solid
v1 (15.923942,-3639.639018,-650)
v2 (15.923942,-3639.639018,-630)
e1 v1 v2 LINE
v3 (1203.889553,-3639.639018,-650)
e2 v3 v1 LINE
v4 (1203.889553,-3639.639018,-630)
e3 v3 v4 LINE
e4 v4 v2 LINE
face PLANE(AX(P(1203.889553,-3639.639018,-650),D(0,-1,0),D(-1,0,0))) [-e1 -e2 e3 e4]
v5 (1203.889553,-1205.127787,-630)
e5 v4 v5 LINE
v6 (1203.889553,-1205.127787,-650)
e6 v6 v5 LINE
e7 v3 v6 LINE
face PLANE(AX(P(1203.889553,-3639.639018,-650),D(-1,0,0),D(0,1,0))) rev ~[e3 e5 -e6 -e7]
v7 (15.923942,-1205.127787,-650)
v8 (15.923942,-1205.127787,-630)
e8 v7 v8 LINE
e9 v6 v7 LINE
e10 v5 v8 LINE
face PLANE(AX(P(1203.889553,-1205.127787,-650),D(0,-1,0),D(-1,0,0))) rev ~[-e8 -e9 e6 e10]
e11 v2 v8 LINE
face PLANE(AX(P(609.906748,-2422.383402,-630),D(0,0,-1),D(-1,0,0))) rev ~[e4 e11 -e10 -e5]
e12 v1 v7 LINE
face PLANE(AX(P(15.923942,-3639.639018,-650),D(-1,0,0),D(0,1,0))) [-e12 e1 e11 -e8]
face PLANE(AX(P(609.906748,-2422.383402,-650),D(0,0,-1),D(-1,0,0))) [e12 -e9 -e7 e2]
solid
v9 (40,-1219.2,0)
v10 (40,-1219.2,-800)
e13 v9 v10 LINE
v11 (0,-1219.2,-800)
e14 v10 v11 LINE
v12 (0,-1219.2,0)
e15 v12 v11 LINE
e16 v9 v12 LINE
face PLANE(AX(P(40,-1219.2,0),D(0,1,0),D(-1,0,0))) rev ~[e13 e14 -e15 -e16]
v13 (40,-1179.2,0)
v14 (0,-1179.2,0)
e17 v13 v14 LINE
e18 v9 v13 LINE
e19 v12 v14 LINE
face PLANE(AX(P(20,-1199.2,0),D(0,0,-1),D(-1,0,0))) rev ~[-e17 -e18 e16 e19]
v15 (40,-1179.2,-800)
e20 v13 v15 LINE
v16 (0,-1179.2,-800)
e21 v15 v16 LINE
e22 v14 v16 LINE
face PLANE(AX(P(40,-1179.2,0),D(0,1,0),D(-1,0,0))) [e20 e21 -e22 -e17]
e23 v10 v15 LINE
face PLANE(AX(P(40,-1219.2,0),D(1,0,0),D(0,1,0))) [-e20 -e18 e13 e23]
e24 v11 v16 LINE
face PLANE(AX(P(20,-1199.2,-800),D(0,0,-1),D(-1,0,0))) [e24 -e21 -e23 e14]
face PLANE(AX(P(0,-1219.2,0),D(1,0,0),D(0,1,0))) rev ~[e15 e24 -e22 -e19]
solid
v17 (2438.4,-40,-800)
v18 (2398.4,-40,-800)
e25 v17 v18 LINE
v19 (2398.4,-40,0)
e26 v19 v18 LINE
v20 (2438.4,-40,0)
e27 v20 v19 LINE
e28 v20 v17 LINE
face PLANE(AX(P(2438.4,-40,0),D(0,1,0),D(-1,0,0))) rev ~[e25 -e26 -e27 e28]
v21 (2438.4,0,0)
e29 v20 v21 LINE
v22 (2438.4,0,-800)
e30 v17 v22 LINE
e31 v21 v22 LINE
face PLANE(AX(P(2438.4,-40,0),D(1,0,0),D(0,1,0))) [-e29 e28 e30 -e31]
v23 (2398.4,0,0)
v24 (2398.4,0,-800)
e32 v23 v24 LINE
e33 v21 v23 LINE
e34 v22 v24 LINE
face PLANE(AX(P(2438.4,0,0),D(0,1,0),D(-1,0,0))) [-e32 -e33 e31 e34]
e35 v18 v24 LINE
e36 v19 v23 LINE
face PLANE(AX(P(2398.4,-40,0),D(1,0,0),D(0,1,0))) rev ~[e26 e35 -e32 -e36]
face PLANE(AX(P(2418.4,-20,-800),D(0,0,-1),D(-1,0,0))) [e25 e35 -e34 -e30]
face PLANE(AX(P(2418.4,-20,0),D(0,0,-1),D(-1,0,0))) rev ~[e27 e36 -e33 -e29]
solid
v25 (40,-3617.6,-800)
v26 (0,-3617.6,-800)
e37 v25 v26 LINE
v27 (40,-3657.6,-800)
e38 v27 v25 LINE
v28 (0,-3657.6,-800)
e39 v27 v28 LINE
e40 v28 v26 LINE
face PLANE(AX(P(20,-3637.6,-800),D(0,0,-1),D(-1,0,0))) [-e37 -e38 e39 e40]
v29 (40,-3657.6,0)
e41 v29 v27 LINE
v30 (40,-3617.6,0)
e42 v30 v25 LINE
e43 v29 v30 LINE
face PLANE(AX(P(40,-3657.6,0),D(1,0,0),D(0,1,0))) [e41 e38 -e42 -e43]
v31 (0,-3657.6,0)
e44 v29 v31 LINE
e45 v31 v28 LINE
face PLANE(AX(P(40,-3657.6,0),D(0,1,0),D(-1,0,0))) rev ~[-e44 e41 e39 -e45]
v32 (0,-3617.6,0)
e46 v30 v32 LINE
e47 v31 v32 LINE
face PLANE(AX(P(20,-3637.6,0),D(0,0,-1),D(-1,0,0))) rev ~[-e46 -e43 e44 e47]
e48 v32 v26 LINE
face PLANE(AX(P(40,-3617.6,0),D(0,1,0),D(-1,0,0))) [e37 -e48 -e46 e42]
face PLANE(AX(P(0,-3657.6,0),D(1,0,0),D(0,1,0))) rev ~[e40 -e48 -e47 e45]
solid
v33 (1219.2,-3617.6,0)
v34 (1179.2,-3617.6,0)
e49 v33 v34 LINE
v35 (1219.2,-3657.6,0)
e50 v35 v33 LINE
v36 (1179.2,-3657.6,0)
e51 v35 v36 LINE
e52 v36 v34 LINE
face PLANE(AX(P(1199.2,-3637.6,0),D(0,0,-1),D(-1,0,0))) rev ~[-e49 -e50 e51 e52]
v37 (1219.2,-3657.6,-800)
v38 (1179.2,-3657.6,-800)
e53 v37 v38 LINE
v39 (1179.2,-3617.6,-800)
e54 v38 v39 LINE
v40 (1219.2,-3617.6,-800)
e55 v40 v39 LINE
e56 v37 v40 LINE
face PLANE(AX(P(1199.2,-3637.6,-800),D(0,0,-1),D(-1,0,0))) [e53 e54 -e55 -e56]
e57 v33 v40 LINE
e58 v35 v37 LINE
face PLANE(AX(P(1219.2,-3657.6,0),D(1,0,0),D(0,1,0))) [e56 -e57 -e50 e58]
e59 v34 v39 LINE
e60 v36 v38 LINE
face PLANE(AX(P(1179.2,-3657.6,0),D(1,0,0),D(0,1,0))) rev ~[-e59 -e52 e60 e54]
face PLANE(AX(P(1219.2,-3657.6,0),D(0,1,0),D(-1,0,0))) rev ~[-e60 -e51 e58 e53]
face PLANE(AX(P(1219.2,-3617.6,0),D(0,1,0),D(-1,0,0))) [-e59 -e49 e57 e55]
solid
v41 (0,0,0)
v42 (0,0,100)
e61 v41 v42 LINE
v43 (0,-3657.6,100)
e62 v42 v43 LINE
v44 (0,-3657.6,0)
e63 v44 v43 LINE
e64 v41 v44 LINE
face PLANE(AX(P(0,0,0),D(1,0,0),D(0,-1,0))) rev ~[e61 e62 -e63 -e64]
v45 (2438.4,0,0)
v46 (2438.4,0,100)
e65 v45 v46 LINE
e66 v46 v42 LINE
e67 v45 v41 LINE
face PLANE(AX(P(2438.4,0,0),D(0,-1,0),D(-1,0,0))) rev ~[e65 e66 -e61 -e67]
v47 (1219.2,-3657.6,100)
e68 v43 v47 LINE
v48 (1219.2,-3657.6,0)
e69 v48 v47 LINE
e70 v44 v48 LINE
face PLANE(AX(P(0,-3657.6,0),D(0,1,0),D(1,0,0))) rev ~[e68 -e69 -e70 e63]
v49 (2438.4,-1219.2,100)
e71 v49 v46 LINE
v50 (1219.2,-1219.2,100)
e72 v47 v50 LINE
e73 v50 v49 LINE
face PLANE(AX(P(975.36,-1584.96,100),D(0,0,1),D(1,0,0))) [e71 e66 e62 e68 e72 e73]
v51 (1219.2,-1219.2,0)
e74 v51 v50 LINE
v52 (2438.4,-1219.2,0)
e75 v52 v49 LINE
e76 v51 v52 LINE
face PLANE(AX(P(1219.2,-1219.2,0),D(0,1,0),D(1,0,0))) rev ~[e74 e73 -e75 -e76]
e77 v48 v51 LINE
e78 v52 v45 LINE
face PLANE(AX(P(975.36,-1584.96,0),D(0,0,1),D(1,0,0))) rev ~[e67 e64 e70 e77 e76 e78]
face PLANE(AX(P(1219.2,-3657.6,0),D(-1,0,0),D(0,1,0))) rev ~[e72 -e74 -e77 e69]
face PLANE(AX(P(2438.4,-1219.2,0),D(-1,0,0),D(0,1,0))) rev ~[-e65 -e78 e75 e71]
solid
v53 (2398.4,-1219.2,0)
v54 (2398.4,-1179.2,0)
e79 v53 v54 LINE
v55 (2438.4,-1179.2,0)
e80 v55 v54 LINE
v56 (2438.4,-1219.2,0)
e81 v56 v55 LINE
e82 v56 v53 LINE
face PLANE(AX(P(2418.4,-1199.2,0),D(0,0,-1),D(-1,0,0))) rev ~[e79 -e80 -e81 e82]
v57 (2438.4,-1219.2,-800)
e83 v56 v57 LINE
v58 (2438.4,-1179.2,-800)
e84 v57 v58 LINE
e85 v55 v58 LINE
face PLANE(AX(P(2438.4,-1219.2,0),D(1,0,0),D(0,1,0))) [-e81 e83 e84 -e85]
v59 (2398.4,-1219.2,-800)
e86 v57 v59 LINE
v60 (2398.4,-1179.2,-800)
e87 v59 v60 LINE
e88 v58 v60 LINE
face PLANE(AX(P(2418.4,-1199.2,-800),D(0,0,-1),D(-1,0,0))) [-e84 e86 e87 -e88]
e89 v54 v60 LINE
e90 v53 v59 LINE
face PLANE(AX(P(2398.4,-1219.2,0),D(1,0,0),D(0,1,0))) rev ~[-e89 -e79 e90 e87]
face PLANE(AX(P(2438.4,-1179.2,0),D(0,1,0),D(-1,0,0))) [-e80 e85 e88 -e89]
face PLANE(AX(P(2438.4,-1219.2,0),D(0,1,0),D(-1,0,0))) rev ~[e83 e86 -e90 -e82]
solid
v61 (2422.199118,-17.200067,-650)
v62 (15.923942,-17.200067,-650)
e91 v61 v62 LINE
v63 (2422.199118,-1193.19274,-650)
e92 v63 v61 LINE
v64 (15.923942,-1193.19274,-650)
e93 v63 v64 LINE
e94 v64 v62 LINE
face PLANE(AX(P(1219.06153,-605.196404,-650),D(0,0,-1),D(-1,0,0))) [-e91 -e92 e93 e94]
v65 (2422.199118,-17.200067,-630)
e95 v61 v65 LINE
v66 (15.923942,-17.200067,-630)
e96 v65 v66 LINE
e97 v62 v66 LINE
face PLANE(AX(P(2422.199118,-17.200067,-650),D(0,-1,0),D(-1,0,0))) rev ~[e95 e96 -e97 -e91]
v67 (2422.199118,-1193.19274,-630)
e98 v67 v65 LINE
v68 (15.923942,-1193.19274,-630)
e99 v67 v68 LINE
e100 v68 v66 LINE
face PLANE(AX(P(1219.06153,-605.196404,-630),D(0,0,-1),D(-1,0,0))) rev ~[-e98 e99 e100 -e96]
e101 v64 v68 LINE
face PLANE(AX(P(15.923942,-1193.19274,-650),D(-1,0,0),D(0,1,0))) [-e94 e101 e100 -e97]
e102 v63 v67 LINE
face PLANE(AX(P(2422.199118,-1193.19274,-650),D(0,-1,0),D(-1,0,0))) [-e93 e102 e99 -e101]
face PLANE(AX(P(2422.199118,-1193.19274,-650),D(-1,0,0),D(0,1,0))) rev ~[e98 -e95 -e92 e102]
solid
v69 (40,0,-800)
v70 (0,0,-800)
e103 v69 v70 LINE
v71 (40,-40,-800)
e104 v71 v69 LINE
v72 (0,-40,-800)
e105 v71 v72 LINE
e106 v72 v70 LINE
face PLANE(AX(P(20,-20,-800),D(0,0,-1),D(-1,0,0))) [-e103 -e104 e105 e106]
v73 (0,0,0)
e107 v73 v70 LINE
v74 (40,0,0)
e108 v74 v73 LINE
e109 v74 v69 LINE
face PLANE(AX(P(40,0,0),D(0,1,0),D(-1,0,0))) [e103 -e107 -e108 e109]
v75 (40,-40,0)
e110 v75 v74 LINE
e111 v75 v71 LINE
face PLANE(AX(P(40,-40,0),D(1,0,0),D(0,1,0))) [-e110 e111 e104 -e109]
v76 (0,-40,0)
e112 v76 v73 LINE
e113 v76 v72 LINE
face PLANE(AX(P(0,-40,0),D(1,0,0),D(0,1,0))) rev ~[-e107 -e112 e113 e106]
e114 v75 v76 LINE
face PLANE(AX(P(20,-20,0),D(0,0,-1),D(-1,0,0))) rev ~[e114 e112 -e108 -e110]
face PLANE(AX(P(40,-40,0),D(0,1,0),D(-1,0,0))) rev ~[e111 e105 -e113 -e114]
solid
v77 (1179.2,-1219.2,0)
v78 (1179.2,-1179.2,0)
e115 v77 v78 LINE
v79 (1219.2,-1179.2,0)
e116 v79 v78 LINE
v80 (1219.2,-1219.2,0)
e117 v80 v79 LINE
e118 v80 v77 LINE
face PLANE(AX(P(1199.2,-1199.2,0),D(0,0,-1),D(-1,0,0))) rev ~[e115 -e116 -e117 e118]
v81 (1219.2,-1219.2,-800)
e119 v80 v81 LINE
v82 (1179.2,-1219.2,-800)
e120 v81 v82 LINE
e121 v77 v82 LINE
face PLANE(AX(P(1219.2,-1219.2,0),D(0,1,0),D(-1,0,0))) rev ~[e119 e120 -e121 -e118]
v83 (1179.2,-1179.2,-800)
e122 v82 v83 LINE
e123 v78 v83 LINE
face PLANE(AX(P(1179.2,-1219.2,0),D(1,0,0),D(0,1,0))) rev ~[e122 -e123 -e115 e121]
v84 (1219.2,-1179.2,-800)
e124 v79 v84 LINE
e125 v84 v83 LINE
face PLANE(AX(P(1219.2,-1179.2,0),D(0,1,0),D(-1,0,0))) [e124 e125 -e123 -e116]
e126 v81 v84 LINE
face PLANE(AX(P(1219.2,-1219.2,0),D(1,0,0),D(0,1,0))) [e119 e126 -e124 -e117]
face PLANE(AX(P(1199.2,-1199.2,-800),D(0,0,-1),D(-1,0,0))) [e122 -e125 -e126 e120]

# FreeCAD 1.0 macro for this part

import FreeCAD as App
import Part
import Sketcher
from FreeCAD import Vector


def add_polygon(sketch, points):
    """Adds a closed chain of lines whose ends are joined by coincident constraints."""
    first, n = sketch.GeometryCount, len(points)
    for a, b in zip(points, points[1:] + points[:1]):
        sketch.addGeometry(Part.LineSegment(App.Vector(*a, 0), App.Vector(*b, 0)), False)
    for i in range(n):
        sketch.addConstraint(Sketcher.Constraint("Coincident", first + i, 2, first + (i + 1) % n, 1))

doc = App.newDocument("Part")
body = doc.addObject("PartDesign::Body", "Body")

sketch1 = doc.addObject("Sketcher::SketchObject", "Sketch")
body.addObject(sketch1)
sketch1.AttachmentSupport = (doc.XY_Plane, [""])
sketch1.MapMode = "FlatFace"
add_polygon(sketch1, [(2438, -1219), (2438, 0), (0, 0), (0, -3658), (1219, -3658), (1219, -1219)])
sketch1.addConstraint(Sketcher.Constraint("Vertical", 0))
sketch1.addConstraint(Sketcher.Constraint("Horizontal", 1))
sketch1.addConstraint(Sketcher.Constraint("Vertical", 2))
sketch1.addConstraint(Sketcher.Constraint("Horizontal", 3))
sketch1.addConstraint(Sketcher.Constraint("Vertical", 4))
sketch1.addConstraint(Sketcher.Constraint("Horizontal", 5))
sketch1.addConstraint(Sketcher.Constraint("Coincident", 1, 2, -1, 1))
sketch1.addConstraint(Sketcher.Constraint("Equal", 3, 5))
sketch1.addConstraint(Sketcher.Constraint("Equal", 5, 0))
sketch1.addConstraint(Sketcher.Constraint("Equal", 1, 4))
sketch1.addConstraint(Sketcher.Constraint("DistanceX", 1, 2, 1, 1, 2438.4))
pad1 = doc.addObject("PartDesign::Pad", "Pad")
body.addObject(pad1)
pad1.Profile = sketch1
pad1.Length = 100
body2 = doc.addObject("PartDesign::Body", "Body001")

sketch2 = doc.addObject("Sketcher::SketchObject", "Sketch001")
body2.addObject(sketch2)
sketch2.AttachmentSupport = (doc.getObject("XY_Plane001"), [""])
sketch2.MapMode = "FlatFace"
add_polygon(sketch2, [(2438, 0), (2438, -40), (2398, -40), (2398, 0)])
sketch2.addConstraint(Sketcher.Constraint("Vertical", 0))
sketch2.addConstraint(Sketcher.Constraint("Horizontal", 1))
sketch2.addConstraint(Sketcher.Constraint("Vertical", 2))
sketch2.addConstraint(Sketcher.Constraint("Horizontal", 3))
sketch2.addConstraint(Sketcher.Constraint("PointOnObject", 2, 2, -1))
sketch2.addConstraint(Sketcher.Constraint("Equal", 3, 0))
sketch2.addConstraint(Sketcher.Constraint("DistanceX", 1, 2, 1, 1, 40.0))
sketch2.addConstraint(Sketcher.Constraint("DistanceX", -1, 1, 0, 2, 2438.4))
pad2 = doc.addObject("PartDesign::Pad", "Pad001")
body2.addObject(pad2)
pad2.Profile = sketch2
pad2.Length = 800
pad2.Reversed = True
body3 = doc.addObject("PartDesign::Body", "Body002")

sketch3 = doc.addObject("Sketcher::SketchObject", "Sketch002")
body3.addObject(sketch3)
sketch3.AttachmentSupport = (doc.getObject("XY_Plane002"), [""])
sketch3.MapMode = "FlatFace"
add_polygon(sketch3, [(40, -3618), (40, -3658), (0, -3658), (0, -3618)])
sketch3.addConstraint(Sketcher.Constraint("Vertical", 0))
sketch3.addConstraint(Sketcher.Constraint("Horizontal", 1))
sketch3.addConstraint(Sketcher.Constraint("Vertical", 2))
sketch3.addConstraint(Sketcher.Constraint("Horizontal", 3))
sketch3.addConstraint(Sketcher.Constraint("PointOnObject", 1, 2, -2))
sketch3.addConstraint(Sketcher.Constraint("Equal", 3, 0))
sketch3.addConstraint(Sketcher.Constraint("DistanceX", 1, 2, 1, 1, 40.0))
sketch3.addConstraint(Sketcher.Constraint("DistanceY", 0, 2, -1, 1, 3657.6))
pad3 = doc.addObject("PartDesign::Pad", "Pad002")
body3.addObject(pad3)
pad3.Profile = sketch3
pad3.Length = 800
pad3.Reversed = True
body4 = doc.addObject("PartDesign::Body", "Body003")

sketch4 = doc.addObject("Sketcher::SketchObject", "Sketch003")
body4.addObject(sketch4)
sketch4.AttachmentSupport = (doc.getObject("XY_Plane003"), [""])
sketch4.MapMode = "FlatFace"
add_polygon(sketch4, [(40, 0), (40, -40), (0, -40), (0, 0)])
sketch4.addConstraint(Sketcher.Constraint("Vertical", 0))
sketch4.addConstraint(Sketcher.Constraint("Horizontal", 1))
sketch4.addConstraint(Sketcher.Constraint("Vertical", 2))
sketch4.addConstraint(Sketcher.Constraint("Horizontal", 3))
sketch4.addConstraint(Sketcher.Constraint("Coincident", 2, 2, -1, 1))
sketch4.addConstraint(Sketcher.Constraint("Equal", 3, 0))
sketch4.addConstraint(Sketcher.Constraint("DistanceX", 1, 2, 1, 1, 40.0))
pad4 = doc.addObject("PartDesign::Pad", "Pad003")
body4.addObject(pad4)
pad4.Profile = sketch4
pad4.Length = 800
pad4.Reversed = True
body5 = doc.addObject("PartDesign::Body", "Body004")

sketch5 = doc.addObject("Sketcher::SketchObject", "Sketch004")
body5.addObject(sketch5)
sketch5.AttachmentSupport = (doc.getObject("XY_Plane004"), [""])
sketch5.MapMode = "FlatFace"
add_polygon(sketch5, [(1219, -3618), (1219, -3658), (1179, -3658), (1179, -3618)])
sketch5.addConstraint(Sketcher.Constraint("Vertical", 0))
sketch5.addConstraint(Sketcher.Constraint("Horizontal", 1))
sketch5.addConstraint(Sketcher.Constraint("Vertical", 2))
sketch5.addConstraint(Sketcher.Constraint("Horizontal", 3))
sketch5.addConstraint(Sketcher.Constraint("Equal", 3, 0))
sketch5.addConstraint(Sketcher.Constraint("DistanceX", 1, 2, 1, 1, 40.0))
sketch5.addConstraint(Sketcher.Constraint("DistanceX", -1, 1, 0, 2, 1219.2))
sketch5.addConstraint(Sketcher.Constraint("DistanceY", 0, 2, -1, 1, 3657.6))
pad5 = doc.addObject("PartDesign::Pad", "Pad004")
body5.addObject(pad5)
pad5.Profile = sketch5
pad5.Length = 800
pad5.Reversed = True
body6 = doc.addObject("PartDesign::Body", "Body005")

sketch6 = doc.addObject("Sketcher::SketchObject", "Sketch005")
body6.addObject(sketch6)
sketch6.AttachmentSupport = (doc.getObject("XY_Plane005"), [""])
sketch6.MapMode = "FlatFace"
add_polygon(sketch6, [(1219, -1179), (1219, -1219), (1179, -1219), (1179, -1179)])
sketch6.addConstraint(Sketcher.Constraint("Vertical", 0))
sketch6.addConstraint(Sketcher.Constraint("Horizontal", 1))
sketch6.addConstraint(Sketcher.Constraint("Vertical", 2))
sketch6.addConstraint(Sketcher.Constraint("Horizontal", 3))
sketch6.addConstraint(Sketcher.Constraint("Equal", 3, 0))
sketch6.addConstraint(Sketcher.Constraint("DistanceX", 1, 2, 1, 1, 40.0))
sketch6.addConstraint(Sketcher.Constraint("DistanceX", -1, 1, 0, 2, 1219.2))
sketch6.addConstraint(Sketcher.Constraint("DistanceY", 0, 2, -1, 1, 1219.2))
pad6 = doc.addObject("PartDesign::Pad", "Pad005")
body6.addObject(pad6)
pad6.Profile = sketch6
pad6.Length = 800
pad6.Reversed = True
body7 = doc.addObject("PartDesign::Body", "Body006")

sketch7 = doc.addObject("Sketcher::SketchObject", "Sketch006")
body7.addObject(sketch7)
sketch7.AttachmentSupport = (doc.getObject("XY_Plane006"), [""])
sketch7.MapMode = "FlatFace"
add_polygon(sketch7, [(2438, -1179), (2438, -1219), (2398, -1219), (2398, -1179)])
sketch7.addConstraint(Sketcher.Constraint("Vertical", 0))
sketch7.addConstraint(Sketcher.Constraint("Horizontal", 1))
sketch7.addConstraint(Sketcher.Constraint("Vertical", 2))
sketch7.addConstraint(Sketcher.Constraint("Horizontal", 3))
sketch7.addConstraint(Sketcher.Constraint("Equal", 3, 0))
sketch7.addConstraint(Sketcher.Constraint("DistanceX", 1, 2, 1, 1, 40.0))
sketch7.addConstraint(Sketcher.Constraint("DistanceX", -1, 1, 0, 2, 2438.4))
sketch7.addConstraint(Sketcher.Constraint("DistanceY", 0, 2, -1, 1, 1219.2))
pad7 = doc.addObject("PartDesign::Pad", "Pad006")
body7.addObject(pad7)
pad7.Profile = sketch7
pad7.Length = 800
pad7.Reversed = True
body8 = doc.addObject("PartDesign::Body", "Body007")

sketch8 = doc.addObject("Sketcher::SketchObject", "Sketch007")
body8.addObject(sketch8)
sketch8.AttachmentSupport = (doc.getObject("XY_Plane007"), [""])
sketch8.MapMode = "FlatFace"
add_polygon(sketch8, [(40, -1179), (40, -1219), (0, -1219), (0, -1179)])
sketch8.addConstraint(Sketcher.Constraint("Vertical", 0))
sketch8.addConstraint(Sketcher.Constraint("Horizontal", 1))
sketch8.addConstraint(Sketcher.Constraint("Vertical", 2))
sketch8.addConstraint(Sketcher.Constraint("Horizontal", 3))
sketch8.addConstraint(Sketcher.Constraint("PointOnObject", 1, 2, -2))
sketch8.addConstraint(Sketcher.Constraint("Equal", 3, 0))
sketch8.addConstraint(Sketcher.Constraint("DistanceX", 1, 2, 1, 1, 40.0))
sketch8.addConstraint(Sketcher.Constraint("DistanceY", 0, 2, -1, 1, 1219.2))
pad8 = doc.addObject("PartDesign::Pad", "Pad007")
body8.addObject(pad8)
pad8.Profile = sketch8
pad8.Length = 800
pad8.Reversed = True
body9 = doc.addObject("PartDesign::Body", "Body008")

sketch9 = doc.addObject("Sketcher::SketchObject", "Sketch008")
body9.addObject(sketch9)
sketch9.AttachmentSupport = (doc.getObject("XY_Plane008"), [""])
sketch9.MapMode = "FlatFace"
sketch9.AttachmentOffset = App.Placement(Vector(0, 0, -650), App.Rotation())
add_polygon(sketch9, [(1204, -1205), (1204, -3640), (16, -3640), (16, -1205)])
sketch9.addConstraint(Sketcher.Constraint("Vertical", 0))
sketch9.addConstraint(Sketcher.Constraint("Horizontal", 1))
sketch9.addConstraint(Sketcher.Constraint("Vertical", 2))
sketch9.addConstraint(Sketcher.Constraint("Horizontal", 3))
sketch9.addConstraint(Sketcher.Constraint("DistanceX", 1, 2, 1, 1, 1187.965611))
sketch9.addConstraint(Sketcher.Constraint("DistanceY", 0, 2, 0, 1, 2434.511231))
sketch9.addConstraint(Sketcher.Constraint("DistanceY", 0, 2, -1, 1, 3639.639018))
sketch9.addConstraint(Sketcher.Constraint("DistanceX", -1, 1, 0, 2, 1203.889553))
pad9 = doc.addObject("PartDesign::Pad", "Pad008")
body9.addObject(pad9)
pad9.Profile = sketch9
pad9.Length = 20
body10 = doc.addObject("PartDesign::Body", "Body009")

sketch10 = doc.addObject("Sketcher::SketchObject", "Sketch009")
body10.addObject(sketch10)
sketch10.AttachmentSupport = (doc.getObject("XY_Plane009"), [""])
sketch10.MapMode = "FlatFace"
sketch10.AttachmentOffset = App.Placement(Vector(0, 0, -650), App.Rotation())
add_polygon(sketch10, [(2422, -17), (2422, -1193), (16, -1193), (16, -17)])
sketch10.addConstraint(Sketcher.Constraint("Vertical", 0))
sketch10.addConstraint(Sketcher.Constraint("Horizontal", 1))
sketch10.addConstraint(Sketcher.Constraint("Vertical", 2))
sketch10.addConstraint(Sketcher.Constraint("Horizontal", 3))
sketch10.addConstraint(Sketcher.Constraint("DistanceX", 1, 2, 1, 1, 2406.275176))
sketch10.addConstraint(Sketcher.Constraint("DistanceY", 0, 2, 0, 1, 1175.992673))
sketch10.addConstraint(Sketcher.Constraint("DistanceX", -1, 1, 0, 2, 2422.199118))
sketch10.addConstraint(Sketcher.Constraint("DistanceY", 0, 2, -1, 1, 1193.19274))
pad10 = doc.addObject("PartDesign::Pad", "Pad009")
body10.addObject(pad10)
pad10.Profile = sketch10
pad10.Length = 20

doc.recompute()
